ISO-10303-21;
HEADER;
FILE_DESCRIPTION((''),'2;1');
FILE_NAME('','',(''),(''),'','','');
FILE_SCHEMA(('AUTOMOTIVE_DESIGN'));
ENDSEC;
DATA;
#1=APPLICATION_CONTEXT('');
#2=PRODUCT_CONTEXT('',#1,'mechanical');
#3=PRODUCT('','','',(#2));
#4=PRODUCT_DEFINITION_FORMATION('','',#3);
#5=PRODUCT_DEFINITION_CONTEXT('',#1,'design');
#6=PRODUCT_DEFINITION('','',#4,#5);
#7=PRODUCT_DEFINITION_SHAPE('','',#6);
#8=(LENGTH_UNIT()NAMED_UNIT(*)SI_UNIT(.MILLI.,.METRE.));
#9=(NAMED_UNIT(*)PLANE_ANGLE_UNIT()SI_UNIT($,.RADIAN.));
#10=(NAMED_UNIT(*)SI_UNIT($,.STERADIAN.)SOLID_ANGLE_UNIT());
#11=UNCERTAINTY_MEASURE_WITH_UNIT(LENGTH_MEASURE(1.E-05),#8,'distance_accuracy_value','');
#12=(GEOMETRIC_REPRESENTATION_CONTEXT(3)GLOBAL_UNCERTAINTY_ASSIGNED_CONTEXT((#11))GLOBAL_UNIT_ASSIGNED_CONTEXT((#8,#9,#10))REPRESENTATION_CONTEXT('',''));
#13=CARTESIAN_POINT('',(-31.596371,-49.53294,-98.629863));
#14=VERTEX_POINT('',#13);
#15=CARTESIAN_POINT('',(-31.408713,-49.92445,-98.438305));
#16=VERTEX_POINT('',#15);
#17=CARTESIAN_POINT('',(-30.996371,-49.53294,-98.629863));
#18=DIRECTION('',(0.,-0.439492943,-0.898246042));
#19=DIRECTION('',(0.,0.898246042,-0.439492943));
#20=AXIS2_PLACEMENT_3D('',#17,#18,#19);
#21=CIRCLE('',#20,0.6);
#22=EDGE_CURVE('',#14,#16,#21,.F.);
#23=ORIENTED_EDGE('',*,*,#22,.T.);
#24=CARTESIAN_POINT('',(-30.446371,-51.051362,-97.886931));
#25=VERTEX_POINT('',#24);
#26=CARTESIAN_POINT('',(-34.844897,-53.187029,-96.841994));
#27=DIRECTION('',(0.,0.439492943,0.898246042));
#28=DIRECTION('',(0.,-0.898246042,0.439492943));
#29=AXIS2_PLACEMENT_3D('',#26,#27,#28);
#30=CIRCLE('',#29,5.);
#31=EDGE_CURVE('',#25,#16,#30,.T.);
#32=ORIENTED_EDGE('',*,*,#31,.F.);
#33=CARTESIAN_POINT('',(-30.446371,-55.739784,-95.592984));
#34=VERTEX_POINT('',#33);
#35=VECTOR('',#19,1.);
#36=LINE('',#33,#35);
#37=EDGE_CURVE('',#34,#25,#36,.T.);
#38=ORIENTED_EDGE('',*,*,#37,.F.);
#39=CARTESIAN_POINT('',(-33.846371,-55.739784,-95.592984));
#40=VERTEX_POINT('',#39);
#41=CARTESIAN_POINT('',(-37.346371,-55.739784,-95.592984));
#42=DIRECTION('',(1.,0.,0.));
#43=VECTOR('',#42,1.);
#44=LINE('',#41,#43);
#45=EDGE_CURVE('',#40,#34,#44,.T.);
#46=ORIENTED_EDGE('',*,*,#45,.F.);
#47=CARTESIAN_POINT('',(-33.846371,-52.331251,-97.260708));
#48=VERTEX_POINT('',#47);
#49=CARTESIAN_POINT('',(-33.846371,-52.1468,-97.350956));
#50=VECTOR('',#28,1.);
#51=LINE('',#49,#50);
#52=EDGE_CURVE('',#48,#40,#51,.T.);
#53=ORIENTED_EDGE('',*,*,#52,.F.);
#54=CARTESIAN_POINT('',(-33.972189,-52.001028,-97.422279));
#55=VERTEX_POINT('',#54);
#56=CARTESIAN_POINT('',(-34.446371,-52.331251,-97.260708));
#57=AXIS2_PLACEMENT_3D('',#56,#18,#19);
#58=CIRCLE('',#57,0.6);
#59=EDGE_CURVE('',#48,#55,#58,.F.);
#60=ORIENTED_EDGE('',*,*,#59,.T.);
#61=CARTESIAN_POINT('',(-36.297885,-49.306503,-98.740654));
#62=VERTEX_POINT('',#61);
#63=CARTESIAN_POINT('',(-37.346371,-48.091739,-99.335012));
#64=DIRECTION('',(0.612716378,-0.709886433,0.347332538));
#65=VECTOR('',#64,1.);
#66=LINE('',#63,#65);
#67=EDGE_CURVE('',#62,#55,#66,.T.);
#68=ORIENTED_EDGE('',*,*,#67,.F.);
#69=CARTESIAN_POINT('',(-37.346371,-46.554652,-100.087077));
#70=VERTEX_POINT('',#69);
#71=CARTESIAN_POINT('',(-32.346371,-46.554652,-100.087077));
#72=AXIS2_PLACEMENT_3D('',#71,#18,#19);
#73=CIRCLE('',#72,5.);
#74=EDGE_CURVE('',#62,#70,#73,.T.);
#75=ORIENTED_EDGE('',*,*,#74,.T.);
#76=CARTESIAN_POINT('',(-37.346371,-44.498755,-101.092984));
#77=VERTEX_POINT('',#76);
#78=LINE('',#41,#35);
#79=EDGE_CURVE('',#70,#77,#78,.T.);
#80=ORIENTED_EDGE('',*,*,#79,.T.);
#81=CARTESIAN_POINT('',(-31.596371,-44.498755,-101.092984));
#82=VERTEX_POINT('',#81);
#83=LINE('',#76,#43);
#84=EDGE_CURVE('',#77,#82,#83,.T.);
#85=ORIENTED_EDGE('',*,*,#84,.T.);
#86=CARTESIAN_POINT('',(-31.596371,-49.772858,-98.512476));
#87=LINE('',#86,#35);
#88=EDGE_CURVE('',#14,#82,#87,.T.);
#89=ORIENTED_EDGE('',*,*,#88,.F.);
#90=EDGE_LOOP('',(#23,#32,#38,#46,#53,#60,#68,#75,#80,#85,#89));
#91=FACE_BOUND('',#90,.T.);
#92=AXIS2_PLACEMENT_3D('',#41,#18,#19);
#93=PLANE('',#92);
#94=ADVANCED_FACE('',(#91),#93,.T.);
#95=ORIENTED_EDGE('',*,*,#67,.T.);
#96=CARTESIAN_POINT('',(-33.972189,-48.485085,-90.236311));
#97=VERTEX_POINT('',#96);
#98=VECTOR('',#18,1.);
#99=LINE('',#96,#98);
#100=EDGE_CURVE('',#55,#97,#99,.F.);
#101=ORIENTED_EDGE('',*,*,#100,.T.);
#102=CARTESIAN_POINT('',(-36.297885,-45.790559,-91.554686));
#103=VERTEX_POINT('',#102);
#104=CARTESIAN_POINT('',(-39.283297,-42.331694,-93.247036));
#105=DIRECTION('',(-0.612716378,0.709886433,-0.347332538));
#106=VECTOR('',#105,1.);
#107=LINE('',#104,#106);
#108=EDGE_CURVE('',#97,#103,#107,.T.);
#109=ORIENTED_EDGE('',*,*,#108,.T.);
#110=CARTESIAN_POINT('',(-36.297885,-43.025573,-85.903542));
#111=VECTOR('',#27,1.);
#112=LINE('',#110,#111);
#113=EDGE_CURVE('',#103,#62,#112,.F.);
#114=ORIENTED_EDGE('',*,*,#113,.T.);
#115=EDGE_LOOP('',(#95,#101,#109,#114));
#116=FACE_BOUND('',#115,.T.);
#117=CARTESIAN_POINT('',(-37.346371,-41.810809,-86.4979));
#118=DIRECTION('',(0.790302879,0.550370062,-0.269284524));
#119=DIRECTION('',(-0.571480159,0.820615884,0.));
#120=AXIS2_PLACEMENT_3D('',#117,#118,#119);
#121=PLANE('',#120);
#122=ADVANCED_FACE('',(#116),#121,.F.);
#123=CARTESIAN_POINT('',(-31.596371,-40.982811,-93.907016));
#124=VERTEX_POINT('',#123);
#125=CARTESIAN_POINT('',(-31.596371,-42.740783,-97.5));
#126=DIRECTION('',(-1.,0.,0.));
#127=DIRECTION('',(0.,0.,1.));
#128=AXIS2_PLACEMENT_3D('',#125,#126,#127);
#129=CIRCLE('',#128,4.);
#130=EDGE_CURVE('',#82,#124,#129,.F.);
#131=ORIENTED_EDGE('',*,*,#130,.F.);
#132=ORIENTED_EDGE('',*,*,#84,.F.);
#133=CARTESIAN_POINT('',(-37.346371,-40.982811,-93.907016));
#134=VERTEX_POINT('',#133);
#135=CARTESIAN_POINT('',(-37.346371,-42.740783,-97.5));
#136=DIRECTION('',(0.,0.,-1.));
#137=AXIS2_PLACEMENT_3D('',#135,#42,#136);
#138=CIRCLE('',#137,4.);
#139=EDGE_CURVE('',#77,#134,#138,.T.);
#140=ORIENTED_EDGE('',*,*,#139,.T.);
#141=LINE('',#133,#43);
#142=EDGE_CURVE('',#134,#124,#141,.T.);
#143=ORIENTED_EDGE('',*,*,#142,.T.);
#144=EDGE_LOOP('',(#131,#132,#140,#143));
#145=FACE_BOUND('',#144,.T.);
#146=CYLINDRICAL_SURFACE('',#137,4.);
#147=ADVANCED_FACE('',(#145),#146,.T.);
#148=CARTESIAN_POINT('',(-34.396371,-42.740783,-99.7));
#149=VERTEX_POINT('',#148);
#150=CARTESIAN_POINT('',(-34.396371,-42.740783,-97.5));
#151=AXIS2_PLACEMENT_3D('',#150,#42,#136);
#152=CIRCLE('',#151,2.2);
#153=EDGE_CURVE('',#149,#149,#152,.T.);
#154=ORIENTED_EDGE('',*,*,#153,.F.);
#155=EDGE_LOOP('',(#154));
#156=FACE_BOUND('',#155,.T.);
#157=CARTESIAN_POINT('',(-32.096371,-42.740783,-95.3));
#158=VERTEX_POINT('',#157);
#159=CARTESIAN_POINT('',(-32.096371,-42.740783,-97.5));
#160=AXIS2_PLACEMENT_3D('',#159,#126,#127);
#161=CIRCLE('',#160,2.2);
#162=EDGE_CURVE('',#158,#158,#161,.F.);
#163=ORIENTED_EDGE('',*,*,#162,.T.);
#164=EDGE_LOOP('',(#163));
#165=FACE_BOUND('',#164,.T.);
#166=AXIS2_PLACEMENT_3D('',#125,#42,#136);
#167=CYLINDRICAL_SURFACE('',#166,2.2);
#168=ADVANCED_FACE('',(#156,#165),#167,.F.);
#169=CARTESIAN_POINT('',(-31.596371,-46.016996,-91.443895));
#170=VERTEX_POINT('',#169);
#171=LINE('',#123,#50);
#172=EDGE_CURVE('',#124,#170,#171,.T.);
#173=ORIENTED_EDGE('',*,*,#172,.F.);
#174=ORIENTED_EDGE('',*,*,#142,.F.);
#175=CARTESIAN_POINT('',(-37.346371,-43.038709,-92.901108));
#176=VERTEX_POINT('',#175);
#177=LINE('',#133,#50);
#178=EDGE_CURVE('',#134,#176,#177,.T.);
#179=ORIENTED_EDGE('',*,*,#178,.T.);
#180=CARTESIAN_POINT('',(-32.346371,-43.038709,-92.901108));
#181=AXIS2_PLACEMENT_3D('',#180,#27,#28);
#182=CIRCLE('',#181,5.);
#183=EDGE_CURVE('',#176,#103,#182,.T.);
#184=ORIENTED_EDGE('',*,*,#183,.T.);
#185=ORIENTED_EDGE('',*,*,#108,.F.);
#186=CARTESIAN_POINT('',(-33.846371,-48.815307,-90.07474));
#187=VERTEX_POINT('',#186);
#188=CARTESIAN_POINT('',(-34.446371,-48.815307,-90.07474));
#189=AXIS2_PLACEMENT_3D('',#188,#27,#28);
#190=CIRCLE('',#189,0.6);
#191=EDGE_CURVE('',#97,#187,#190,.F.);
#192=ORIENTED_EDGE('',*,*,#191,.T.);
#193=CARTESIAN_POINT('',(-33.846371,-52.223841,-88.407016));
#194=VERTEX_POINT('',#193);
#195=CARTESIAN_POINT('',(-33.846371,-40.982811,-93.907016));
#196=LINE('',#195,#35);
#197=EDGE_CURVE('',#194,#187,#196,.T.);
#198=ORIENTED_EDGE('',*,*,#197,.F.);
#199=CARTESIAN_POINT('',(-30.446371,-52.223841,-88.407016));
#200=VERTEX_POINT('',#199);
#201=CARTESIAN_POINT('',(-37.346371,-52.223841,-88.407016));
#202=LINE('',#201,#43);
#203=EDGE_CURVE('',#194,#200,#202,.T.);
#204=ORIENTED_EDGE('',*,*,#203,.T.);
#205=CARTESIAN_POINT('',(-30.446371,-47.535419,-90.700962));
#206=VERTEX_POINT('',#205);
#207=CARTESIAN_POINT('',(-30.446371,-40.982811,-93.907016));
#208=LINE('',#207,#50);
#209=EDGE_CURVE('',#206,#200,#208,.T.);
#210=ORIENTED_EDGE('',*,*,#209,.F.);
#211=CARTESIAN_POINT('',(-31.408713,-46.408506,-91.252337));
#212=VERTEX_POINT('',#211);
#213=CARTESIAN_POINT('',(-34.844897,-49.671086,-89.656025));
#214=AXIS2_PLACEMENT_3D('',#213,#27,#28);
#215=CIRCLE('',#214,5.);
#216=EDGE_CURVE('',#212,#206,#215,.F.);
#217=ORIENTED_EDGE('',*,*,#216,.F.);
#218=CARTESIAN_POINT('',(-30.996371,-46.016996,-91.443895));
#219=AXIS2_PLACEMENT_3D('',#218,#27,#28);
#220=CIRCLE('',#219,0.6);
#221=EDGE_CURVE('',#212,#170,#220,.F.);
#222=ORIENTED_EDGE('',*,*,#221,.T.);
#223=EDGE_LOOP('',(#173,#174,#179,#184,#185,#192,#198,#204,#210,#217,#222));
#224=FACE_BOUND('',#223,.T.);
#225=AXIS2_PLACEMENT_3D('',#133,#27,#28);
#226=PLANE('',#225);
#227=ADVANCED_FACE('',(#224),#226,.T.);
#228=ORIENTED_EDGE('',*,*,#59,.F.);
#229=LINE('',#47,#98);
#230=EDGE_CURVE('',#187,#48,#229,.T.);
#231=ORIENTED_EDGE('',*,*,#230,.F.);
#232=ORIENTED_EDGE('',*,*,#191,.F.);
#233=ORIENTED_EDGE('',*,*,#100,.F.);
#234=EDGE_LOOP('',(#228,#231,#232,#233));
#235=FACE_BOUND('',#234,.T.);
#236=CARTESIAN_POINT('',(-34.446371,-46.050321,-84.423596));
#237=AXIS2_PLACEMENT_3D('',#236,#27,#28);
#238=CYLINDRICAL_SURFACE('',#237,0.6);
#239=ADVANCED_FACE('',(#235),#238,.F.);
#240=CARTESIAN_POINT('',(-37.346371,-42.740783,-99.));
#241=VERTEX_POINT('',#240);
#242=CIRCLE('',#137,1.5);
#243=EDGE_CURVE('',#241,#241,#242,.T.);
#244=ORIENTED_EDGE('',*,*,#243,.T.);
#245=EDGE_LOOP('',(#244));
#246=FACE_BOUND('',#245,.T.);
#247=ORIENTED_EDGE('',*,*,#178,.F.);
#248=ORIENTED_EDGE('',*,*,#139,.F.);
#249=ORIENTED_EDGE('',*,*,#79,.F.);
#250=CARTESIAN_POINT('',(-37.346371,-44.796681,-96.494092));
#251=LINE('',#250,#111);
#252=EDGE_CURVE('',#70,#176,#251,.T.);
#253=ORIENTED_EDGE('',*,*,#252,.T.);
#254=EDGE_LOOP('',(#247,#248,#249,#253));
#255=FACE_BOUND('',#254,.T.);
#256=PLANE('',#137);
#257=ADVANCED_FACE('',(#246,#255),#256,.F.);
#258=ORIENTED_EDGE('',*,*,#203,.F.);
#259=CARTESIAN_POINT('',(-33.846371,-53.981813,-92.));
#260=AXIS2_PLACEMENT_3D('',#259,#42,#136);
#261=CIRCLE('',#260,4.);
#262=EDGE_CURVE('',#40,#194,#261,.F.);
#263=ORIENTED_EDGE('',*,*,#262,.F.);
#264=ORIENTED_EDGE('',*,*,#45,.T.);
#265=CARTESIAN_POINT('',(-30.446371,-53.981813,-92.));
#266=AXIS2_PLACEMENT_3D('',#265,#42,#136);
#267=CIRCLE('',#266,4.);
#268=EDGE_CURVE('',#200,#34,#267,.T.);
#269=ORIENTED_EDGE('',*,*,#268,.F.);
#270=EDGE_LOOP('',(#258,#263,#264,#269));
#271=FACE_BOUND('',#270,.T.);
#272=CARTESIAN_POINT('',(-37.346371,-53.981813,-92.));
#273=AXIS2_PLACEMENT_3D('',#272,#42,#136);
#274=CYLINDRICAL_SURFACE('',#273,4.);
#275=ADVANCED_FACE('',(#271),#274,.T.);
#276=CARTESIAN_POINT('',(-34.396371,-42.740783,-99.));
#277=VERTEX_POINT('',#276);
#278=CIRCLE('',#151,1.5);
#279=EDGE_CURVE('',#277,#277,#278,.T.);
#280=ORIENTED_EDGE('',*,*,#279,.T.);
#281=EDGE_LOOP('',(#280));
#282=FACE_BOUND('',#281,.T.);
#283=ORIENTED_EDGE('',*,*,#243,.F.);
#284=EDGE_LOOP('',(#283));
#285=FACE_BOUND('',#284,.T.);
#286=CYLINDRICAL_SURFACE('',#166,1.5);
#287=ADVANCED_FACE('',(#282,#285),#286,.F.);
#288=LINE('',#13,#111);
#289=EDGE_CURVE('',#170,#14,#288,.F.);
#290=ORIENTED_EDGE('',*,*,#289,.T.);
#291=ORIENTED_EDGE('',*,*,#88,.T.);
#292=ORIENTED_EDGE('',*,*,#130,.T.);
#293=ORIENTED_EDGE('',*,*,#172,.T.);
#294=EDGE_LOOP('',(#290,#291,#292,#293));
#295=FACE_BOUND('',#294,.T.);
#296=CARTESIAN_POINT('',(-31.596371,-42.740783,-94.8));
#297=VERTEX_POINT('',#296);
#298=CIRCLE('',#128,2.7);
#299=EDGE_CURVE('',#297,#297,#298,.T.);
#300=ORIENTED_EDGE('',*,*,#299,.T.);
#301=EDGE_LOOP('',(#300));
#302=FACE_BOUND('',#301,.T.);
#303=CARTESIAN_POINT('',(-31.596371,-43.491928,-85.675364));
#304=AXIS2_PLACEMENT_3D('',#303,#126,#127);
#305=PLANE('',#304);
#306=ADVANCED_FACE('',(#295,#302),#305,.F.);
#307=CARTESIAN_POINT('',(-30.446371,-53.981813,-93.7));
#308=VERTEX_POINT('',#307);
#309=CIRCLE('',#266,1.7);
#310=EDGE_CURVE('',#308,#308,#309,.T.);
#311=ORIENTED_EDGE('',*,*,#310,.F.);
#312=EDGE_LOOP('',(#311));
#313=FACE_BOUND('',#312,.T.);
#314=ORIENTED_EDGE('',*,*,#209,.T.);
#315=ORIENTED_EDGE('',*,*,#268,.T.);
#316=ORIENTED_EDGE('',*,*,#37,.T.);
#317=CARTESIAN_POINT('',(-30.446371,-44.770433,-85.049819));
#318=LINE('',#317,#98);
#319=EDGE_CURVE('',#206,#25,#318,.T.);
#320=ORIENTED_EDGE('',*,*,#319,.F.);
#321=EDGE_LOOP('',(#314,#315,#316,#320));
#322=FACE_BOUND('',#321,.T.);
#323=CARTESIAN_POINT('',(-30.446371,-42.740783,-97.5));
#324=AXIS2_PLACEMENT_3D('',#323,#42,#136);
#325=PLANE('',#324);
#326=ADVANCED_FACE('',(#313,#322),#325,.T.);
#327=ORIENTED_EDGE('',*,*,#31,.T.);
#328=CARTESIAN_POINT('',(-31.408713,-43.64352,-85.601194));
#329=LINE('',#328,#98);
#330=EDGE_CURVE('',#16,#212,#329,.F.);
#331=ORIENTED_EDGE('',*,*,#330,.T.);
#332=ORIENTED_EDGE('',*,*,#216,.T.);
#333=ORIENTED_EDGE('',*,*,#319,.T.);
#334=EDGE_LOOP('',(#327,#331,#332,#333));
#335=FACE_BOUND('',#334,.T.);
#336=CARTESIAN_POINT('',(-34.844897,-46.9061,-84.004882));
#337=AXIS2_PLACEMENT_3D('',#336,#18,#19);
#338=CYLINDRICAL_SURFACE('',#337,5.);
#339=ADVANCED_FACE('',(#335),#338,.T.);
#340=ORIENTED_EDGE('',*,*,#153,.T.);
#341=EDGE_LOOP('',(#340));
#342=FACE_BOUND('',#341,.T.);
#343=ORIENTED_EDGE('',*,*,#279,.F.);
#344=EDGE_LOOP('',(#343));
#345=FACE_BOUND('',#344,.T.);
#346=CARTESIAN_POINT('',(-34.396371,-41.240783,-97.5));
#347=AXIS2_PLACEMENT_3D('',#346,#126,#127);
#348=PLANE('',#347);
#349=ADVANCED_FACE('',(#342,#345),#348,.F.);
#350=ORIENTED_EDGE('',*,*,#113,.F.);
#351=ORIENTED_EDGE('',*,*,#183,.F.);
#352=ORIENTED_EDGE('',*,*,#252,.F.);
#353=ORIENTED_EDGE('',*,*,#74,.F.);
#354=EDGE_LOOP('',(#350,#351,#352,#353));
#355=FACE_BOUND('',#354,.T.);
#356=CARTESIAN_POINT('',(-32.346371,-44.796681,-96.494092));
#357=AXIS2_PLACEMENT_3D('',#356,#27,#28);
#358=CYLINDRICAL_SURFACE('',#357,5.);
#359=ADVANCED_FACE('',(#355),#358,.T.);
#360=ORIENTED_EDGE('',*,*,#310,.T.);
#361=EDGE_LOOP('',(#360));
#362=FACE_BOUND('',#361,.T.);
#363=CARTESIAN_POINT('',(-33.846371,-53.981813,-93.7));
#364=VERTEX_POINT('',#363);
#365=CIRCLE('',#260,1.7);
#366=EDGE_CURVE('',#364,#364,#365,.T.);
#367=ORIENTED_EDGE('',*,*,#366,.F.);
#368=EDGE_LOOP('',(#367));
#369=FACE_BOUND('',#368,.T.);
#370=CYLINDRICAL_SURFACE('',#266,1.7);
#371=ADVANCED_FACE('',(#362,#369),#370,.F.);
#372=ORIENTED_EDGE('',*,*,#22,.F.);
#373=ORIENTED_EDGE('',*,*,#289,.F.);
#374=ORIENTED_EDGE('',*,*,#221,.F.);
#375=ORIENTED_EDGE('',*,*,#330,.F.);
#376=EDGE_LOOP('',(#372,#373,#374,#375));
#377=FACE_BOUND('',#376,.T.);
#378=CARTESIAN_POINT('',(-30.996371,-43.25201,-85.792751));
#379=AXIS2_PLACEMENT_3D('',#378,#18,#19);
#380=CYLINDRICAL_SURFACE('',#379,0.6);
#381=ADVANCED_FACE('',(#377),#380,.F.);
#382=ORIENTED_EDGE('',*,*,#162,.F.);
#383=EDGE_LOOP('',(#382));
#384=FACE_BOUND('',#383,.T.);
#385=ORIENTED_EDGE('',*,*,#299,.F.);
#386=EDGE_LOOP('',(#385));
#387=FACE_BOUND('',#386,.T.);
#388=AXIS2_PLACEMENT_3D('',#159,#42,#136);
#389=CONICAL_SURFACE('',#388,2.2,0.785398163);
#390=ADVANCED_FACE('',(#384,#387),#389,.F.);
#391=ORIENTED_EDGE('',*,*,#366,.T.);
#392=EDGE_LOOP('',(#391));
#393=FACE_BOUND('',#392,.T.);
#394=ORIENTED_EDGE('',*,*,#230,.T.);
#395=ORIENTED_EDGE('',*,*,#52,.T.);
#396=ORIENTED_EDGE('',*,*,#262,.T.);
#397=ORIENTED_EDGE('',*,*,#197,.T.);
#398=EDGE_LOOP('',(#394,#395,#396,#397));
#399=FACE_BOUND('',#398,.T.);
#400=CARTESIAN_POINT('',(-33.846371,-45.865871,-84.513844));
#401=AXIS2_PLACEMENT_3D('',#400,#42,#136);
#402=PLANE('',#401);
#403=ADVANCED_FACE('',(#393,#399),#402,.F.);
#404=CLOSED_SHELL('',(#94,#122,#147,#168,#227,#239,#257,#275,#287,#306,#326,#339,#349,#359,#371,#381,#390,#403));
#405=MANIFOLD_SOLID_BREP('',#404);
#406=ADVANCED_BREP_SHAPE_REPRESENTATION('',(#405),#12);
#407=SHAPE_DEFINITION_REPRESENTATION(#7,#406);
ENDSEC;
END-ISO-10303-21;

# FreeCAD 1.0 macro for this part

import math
import FreeCAD as App
import Part
import Sketcher


def edges_at(feature, points):
    """Names of the edges that pass closest to the given points."""
    edges = feature.Shape.Edges
    near = lambda p: min(range(len(edges)), key=lambda i: edges[i].distToShape(Part.Vertex(*p))[0])
    return sorted({f"Edge{near(p) + 1}" for p in points})


def add_polygon(sketch, points):
    """Adds a closed chain of lines whose ends are joined by coincident constraints."""
    first, n = sketch.GeometryCount, len(points)
    for a, b in zip(points, points[1:] + points[:1]):
        sketch.addGeometry(Part.LineSegment(App.Vector(*a, 0), App.Vector(*b, 0)), False)
    for i in range(n):
        sketch.addConstraint(Sketcher.Constraint("Coincident", first + i, 2, first + (i + 1) % n, 1))

doc = App.newDocument("Part")
body = doc.addObject("PartDesign::Body", "Body")

sketch1 = body.newObject("Sketcher::SketchObject", "Sketch")
sketch1.AttachmentSupport = (doc.getObject("YZ_Plane"), [""])
sketch1.MapMode = "FlatFace"
sketch1.AttachmentOffset = App.Placement(App.Vector(0, 0, -30.446371), App.Rotation())
sketch1.addGeometry(Part.LineSegment(App.Vector(-41, -93.9, 0), App.Vector(-52.2, -88.4, 0)), False)
sketch1.addGeometry(Part.ArcOfCircle(Part.Circle(App.Vector(-54, -92, 0), App.Vector(0, 0, 1), 4), math.radians(64), math.radians(244)), False)
sketch1.addGeometry(Part.LineSegment(App.Vector(-55.7, -95.6, 0), App.Vector(-44.5, -101.1, 0)), False)
sketch1.addGeometry(Part.ArcOfCircle(Part.Circle(App.Vector(-42.7, -97.5, 0), App.Vector(0, 0, 1), 4), math.radians(-116), math.radians(64)), False)
sketch1.addConstraint(Sketcher.Constraint("Tangent", 0, 2, 1, 1))
sketch1.addConstraint(Sketcher.Constraint("Tangent", 1, 2, 2, 1))
sketch1.addConstraint(Sketcher.Constraint("Tangent", 2, 2, 3, 1))
sketch1.addConstraint(Sketcher.Constraint("Tangent", 3, 2, 0, 1))
sketch1.addConstraint(Sketcher.Constraint("Equal", 1, 3))
sketch1.addConstraint(Sketcher.Constraint("Radius", 1, 4.0))
sketch1.addConstraint(Sketcher.Constraint("DistanceY", 1, 3, -1, 1, 92.0))
sketch1.addConstraint(Sketcher.Constraint("DistanceY", 3, 3, -1, 1, 97.5))
sketch1.addConstraint(Sketcher.Constraint("DistanceX", 1, 2, 3, 3, 12.999001))
sketch1.addConstraint(Sketcher.Constraint("DistanceX", 0, 2, -1, 1, 52.223841))
pad1 = body.newObject("PartDesign::Pad", "Pad")
pad1.Profile = sketch1
pad1.Length = 6.9
pad1.Reversed = True

sketch2 = body.newObject("Sketcher::SketchObject", "Sketch001")
sketch2.Placement = App.Placement(App.Vector(0, -48.503875, -99.133363), App.Rotation(App.Vector(-1, 0, 0), App.Vector(0, 0.898246042, -0.439492943), App.Vector(0, -0.439492943, -0.898246042), "ZXY"))
add_polygon(sketch2, [(37.3, 0.5), (33.8, -4.1), (33.8, -14.2), (37.3, -14.2)])
sketch2.addConstraint(Sketcher.Constraint("Vertical", 1))
sketch2.addConstraint(Sketcher.Constraint("Horizontal", 2))
sketch2.addConstraint(Sketcher.Constraint("Vertical", 3))
sketch2.addConstraint(Sketcher.Constraint("DistanceX", 2, 1, 2, 2, 3.5))
sketch2.addConstraint(Sketcher.Constraint("DistanceY", 0, 2, -1, 1, 4.055599))
sketch2.addConstraint(Sketcher.Constraint("DistanceY", 1, 2, 1, 1, 10.182093))
sketch2.addConstraint(Sketcher.Constraint("DistanceY", 3, 1, 3, 2, 14.696514))
sketch2.addConstraint(Sketcher.Constraint("DistanceX", -1, 1, 0, 2, 33.846371))
pocket1 = body.newObject("PartDesign::Pocket", "Pocket")
pocket1.Profile = sketch2
pocket1.Type = "ThroughAll"

sketch3 = body.newObject("Sketcher::SketchObject", "Sketch002")
sketch3.Placement = App.Placement(App.Vector(0, -48.503875, -99.133363), App.Rotation(App.Vector(-1, 0, 0), App.Vector(0, 0.898246042, -0.439492943), App.Vector(0, -0.439492943, -0.898246042), "ZXY"))
sketch3.addGeometry(Part.LineSegment(App.Vector(29.8, 8.6, 0), App.Vector(29.8, -5.2, 0)), False)
sketch3.addGeometry(Part.ArcOfCircle(Part.Circle(App.Vector(34.8, -5.2, 0), App.Vector(0, 0, 1), 5), math.radians(131), math.radians(180)), False)
sketch3.addGeometry(Part.LineSegment(App.Vector(31.6, -1.4, 0), App.Vector(31.6, 8.6, 0)), False)
sketch3.addGeometry(Part.LineSegment(App.Vector(31.6, 8.6, 0), App.Vector(29.8, 8.6, 0)), False)
sketch3.addConstraint(Sketcher.Constraint("Tangent", 0, 2, 1, 2))
sketch3.addConstraint(Sketcher.Constraint("Coincident", 1, 1, 2, 1))
sketch3.addConstraint(Sketcher.Constraint("Coincident", 2, 2, 3, 1))
sketch3.addConstraint(Sketcher.Constraint("Coincident", 3, 2, 0, 1))
sketch3.addConstraint(Sketcher.Constraint("Vertical", 0))
sketch3.addConstraint(Sketcher.Constraint("Vertical", 2))
sketch3.addConstraint(Sketcher.Constraint("Horizontal", 3))
sketch3.addConstraint(Sketcher.Constraint("Radius", 1, 5.0))
sketch3.addConstraint(Sketcher.Constraint("DistanceX", 3, 2, 3, 1, 1.751474))
sketch3.addConstraint(Sketcher.Constraint("DistanceY", 0, 2, 0, 1, 13.794617))
sketch3.addConstraint(Sketcher.Constraint("DistanceX", -1, 1, 1, 1, 31.596371))
sketch3.addConstraint(Sketcher.Constraint("DistanceY", -1, 1, 2, 2, 8.580951))
pocket2 = body.newObject("PartDesign::Pocket", "Pocket001")
pocket2.Profile = sketch3
pocket2.Type = "ThroughAll"

sketch4 = body.newObject("Sketcher::SketchObject", "Sketch003")
sketch4.AttachmentSupport = (doc.getObject("YZ_Plane"), [""])
sketch4.MapMode = "FlatFace"
sketch4.AttachmentOffset = App.Placement(App.Vector(0, 0, -30.446371), App.Rotation())
sketch4.addGeometry(Part.Circle(App.Vector(-54, -92, 0), App.Vector(0, 0, 1), 1.7), False)
sketch4.addConstraint(Sketcher.Constraint("Diameter", 0, 3.4))
sketch4.addConstraint(Sketcher.Constraint("DistanceY", 0, 3, -1, 1, 92.0))
sketch4.addConstraint(Sketcher.Constraint("DistanceX", 0, 3, -1, 1, 53.981813))
doc.recompute()
hole = body.newObject("PartDesign::Hole", "Hole")
hole.Profile = sketch4
hole.ThreadType = "None"
hole.Diameter = 3.4
hole.DepthType = "ThroughAll"

sketch5 = body.newObject("Sketcher::SketchObject", "Sketch004")
sketch5.AttachmentSupport = (doc.getObject("YZ_Plane"), [""])
sketch5.MapMode = "FlatFace"
sketch5.AttachmentOffset = App.Placement(App.Vector(0, 0, -31.596371), App.Rotation())
sketch5.addGeometry(Part.Circle(App.Vector(-42.7, -97.5, 0), App.Vector(0, 0, 1), 1.5), False)
sketch5.addConstraint(Sketcher.Constraint("Diameter", 0, 3.0))
sketch5.addConstraint(Sketcher.Constraint("DistanceY", 0, 3, -1, 1, 97.5))
sketch5.addConstraint(Sketcher.Constraint("DistanceX", 0, 3, -1, 1, 42.740783))
doc.recompute()
hole2 = body.newObject("PartDesign::Hole", "Hole001")
hole2.Profile = sketch5
hole2.ThreadType = "None"
hole2.Diameter = 3
hole2.DepthType = "ThroughAll"
hole2.HoleCutType = "Counterbore"
hole2.HoleCutDiameter = 4.4
hole2.HoleCutDepth = 2.8
doc.recompute()

fillet = body.newObject("PartDesign::Fillet", "Fillet")
fillet.Base = (hole2, edges_at(hole2, [(-33.846, -50.389, -93.758), (-31.596, -48.015, -94.919)]))
fillet.Radius = 0.6
doc.recompute()

fillet2 = body.newObject("PartDesign::Fillet", "Fillet001")
fillet2.Base = (fillet, edges_at(fillet, [(-37.346, -46.334, -95.742)]))
fillet2.Radius = 5
doc.recompute()

chamfer = body.newObject("PartDesign::Chamfer", "Chamfer")
chamfer.Base = (fillet2, edges_at(fillet2, [(-31.596, -42.741, -95.3)]))
chamfer.Size = 0.5

doc.recompute()
